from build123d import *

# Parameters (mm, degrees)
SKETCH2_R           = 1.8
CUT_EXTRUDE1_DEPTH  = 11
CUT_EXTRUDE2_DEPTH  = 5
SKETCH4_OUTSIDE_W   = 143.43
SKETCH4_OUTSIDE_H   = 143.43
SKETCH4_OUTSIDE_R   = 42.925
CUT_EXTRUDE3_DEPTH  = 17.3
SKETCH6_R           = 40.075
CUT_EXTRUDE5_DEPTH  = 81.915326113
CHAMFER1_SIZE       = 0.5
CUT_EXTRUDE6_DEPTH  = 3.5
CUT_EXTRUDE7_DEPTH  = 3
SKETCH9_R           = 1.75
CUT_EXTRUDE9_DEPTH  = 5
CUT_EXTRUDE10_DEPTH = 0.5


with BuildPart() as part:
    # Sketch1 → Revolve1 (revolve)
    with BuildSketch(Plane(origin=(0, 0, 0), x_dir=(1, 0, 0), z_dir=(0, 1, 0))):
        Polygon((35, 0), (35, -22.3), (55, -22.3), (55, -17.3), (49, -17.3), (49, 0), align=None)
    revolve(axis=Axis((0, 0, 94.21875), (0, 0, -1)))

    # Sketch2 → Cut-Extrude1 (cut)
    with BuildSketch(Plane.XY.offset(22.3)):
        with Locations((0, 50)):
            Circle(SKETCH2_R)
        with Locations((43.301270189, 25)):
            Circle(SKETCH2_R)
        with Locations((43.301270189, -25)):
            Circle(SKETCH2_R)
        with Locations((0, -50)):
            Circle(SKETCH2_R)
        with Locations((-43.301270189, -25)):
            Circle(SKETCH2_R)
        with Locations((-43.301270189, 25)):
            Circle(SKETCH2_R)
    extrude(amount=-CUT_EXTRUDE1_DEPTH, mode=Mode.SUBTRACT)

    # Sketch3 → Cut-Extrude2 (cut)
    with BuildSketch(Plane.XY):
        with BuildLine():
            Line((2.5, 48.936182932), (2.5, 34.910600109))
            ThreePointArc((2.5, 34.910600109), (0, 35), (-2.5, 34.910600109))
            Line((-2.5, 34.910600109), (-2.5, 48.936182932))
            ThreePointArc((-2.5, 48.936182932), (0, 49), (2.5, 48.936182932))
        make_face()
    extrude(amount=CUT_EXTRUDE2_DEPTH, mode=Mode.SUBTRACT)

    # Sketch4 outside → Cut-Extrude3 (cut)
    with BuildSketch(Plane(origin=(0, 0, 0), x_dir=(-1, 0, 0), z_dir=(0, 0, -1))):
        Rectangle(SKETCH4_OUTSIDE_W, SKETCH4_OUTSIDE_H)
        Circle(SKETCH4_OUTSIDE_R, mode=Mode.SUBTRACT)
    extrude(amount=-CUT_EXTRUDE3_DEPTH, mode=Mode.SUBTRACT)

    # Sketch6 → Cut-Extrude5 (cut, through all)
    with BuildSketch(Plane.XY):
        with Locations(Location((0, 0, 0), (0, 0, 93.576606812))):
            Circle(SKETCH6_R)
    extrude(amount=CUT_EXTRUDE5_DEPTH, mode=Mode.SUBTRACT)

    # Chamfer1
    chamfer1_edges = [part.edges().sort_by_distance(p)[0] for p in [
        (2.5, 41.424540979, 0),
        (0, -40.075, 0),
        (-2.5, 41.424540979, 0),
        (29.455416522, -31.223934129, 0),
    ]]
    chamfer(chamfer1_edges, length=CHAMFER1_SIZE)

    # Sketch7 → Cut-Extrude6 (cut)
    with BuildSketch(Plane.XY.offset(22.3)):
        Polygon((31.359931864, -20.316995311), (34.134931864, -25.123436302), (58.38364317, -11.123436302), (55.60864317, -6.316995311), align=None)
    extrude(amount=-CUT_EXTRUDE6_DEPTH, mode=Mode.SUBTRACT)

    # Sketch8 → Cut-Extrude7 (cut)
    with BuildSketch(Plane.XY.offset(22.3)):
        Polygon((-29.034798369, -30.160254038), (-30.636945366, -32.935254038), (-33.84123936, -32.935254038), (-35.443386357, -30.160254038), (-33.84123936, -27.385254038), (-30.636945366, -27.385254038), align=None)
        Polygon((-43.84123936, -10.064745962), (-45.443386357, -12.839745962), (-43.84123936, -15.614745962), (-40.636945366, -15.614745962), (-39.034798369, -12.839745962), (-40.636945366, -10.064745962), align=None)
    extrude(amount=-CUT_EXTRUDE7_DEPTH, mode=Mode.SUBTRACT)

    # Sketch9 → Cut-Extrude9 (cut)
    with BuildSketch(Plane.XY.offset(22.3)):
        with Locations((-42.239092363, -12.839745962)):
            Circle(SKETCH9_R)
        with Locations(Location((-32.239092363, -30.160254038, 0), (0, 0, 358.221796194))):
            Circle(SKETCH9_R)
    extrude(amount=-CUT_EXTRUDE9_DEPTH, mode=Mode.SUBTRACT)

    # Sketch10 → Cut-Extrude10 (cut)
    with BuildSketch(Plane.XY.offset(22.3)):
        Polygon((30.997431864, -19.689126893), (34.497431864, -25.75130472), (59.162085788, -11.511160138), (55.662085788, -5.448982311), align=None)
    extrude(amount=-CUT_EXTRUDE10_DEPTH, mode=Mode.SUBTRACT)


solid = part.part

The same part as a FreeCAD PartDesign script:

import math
import FreeCAD as App
import Part
import Sketcher
from FreeCAD import Vector
Q = App.Units.Quantity


def edges_at(feature, points):
    """Names of the edges that pass closest to the given points."""
    edges = feature.Shape.Edges
    near = lambda p: min(range(len(edges)), key=lambda i: edges[i].distToShape(Part.Vertex(*p))[0])
    return sorted({f"Edge{near(p) + 1}" for p in points})


def add_polygon(sketch, points):
    """Adds a closed chain of lines whose ends are joined by coincident constraints."""
    first, n = sketch.GeometryCount, len(points)
    for a, b in zip(points, points[1:] + points[:1]):
        sketch.addGeometry(Part.LineSegment(App.Vector(*a, 0), App.Vector(*b, 0)), False)
    for i in range(n):
        sketch.addConstraint(Sketcher.Constraint("Coincident", first + i, 2, first + (i + 1) % n, 1))

doc = App.newDocument("Part")
params = doc.addObject("Spreadsheet::Sheet", "Params")
for row, (alias, value) in enumerate([
    ("sketch1_width", "20 mm"),
    ("sketch1_width2", "6 mm"),
    ("sketch1_height", "5 mm"),
    ("sketch1_height2", "22.3 mm"),
    ("revolution_angle", "360 deg"),
    ("sketch2_diameter", "3.6 mm"),
    ("pocket1_length", "11 mm"),
    ("sketch3_radius", "49 mm"),
    ("sketch3_radius2", "35 mm"),
    ("pocket2_length", "5 mm"),
    ("sketch4_diameter", "85.85 mm"),
    ("sketch4_width", "143.43 mm"),
    ("pocket3_length", "17.3 mm"),
    ("sketch5_diameter", "80.15 mm"),
    ("chamfer_size", "0.5 mm"),
    ("sketch6_length", "28 mm"),
    ("sketch6_length2", "5.55 mm"),
    ("pocket5_length", "3.5 mm"),
    ("pocket6_length", "3 mm"),
    ("sketch8_diameter", "3.5 mm"),
    ("pocket7_length", "5 mm"),
    ("sketch9_length", "7 mm"),
    ("pocket8_length", "0.5 mm"),
], start=1):
    params.set(f"A{row}", alias)
    params.set(f"B{row}", "=" + value)
    params.setAlias(f"B{row}", alias)

body = doc.addObject("PartDesign::Body", "Body")

sketch1 = body.newObject("Sketcher::SketchObject", "Sketch")
sketch1.AttachmentSupport = (doc.getObject("XZ_Plane"), [""])
sketch1.MapMode = "FlatFace"
add_polygon(sketch1, [(35, 0), (35, 22.3), (55, 22.3), (55, 17.3), (49, 17.3), (49, 0)])
sketch1.addConstraint([
    Sketcher.Constraint("Vertical", 0),
    Sketcher.Constraint("Horizontal", 1),
    Sketcher.Constraint("Vertical", 2),
    Sketcher.Constraint("Horizontal", 3),
    Sketcher.Constraint("Vertical", 4),
    Sketcher.Constraint("Horizontal", 5),
    Sketcher.Constraint("PointOnObject", 4, 2, -1),
    Sketcher.Constraint("DistanceX", 1, 1, 1, 2, Q("20 mm")),
    Sketcher.Constraint("DistanceX", 3, 2, 3, 1, Q("6 mm")),
    Sketcher.Constraint("DistanceY", 2, 2, 2, 1, Q("5 mm")),
    Sketcher.Constraint("DistanceY", 0, 1, 0, 2, Q("22.3 mm")),
    Sketcher.Constraint("DistanceX", -1, 1, 0, 2, Q("35 mm")),
])
sketch1.setExpression("Constraints[13]", "Params.sketch1_width")
sketch1.setExpression("Constraints[14]", "Params.sketch1_width2")
sketch1.setExpression("Constraints[15]", "Params.sketch1_height")
sketch1.setExpression("Constraints[16]", "Params.sketch1_height2")
revolution = body.newObject("PartDesign::Revolution", "Revolution")
revolution.Profile = sketch1
revolution.ReferenceAxis = (sketch1, ["V_Axis"])
revolution.setExpression("Angle", "Params.revolution_angle")

sketch2 = body.newObject("Sketcher::SketchObject", "Sketch001")
sketch2.AttachmentSupport = (doc.getObject("XY_Plane"), [""])
sketch2.MapMode = "FlatFace"
sketch2.AttachmentOffset = App.Placement(Vector(0, 0, 22.3), App.Rotation())
sketch2.addGeometry([
    Part.Circle(Vector(0, 50, 0), Vector(0, 0, 1), 1.8),
    Part.Circle(Vector(43.30127, 25, 0), Vector(0, 0, 1), 1.8),
    Part.Circle(Vector(43.30127, -25, 0), Vector(0, 0, 1), 1.8),
    Part.Circle(Vector(0, -50, 0), Vector(0, 0, 1), 1.8),
    Part.Circle(Vector(-43.30127, -25, 0), Vector(0, 0, 1), 1.8),
    Part.Circle(Vector(-43.30127, 25, 0), Vector(0, 0, 1), 1.8),
], False)
sketch2.addConstraint([
    Sketcher.Constraint("Equal", 0, 1),
    Sketcher.Constraint("Equal", 1, 2),
    Sketcher.Constraint("Equal", 2, 3),
    Sketcher.Constraint("Equal", 3, 4),
    Sketcher.Constraint("Equal", 4, 5),
    Sketcher.Constraint("Symmetric", 0, 3, 3, 3, -1, 1),
    Sketcher.Constraint("Symmetric", 1, 3, 4, 3, -1, 1),
    Sketcher.Constraint("Symmetric", 2, 3, 5, 3, -1, 1),
    Sketcher.Constraint("Symmetric", 2, 3, 4, 3, -2),
    Sketcher.Constraint("PointOnObject", 0, 3, -2),
    Sketcher.Constraint("Diameter", 0, Q("3.6 mm")),
    Sketcher.Constraint("DistanceY", -1, 1, 0, 3, Q("50 mm")),
    Sketcher.Constraint("DistanceY", -1, 1, 1, 3, Q("25 mm")),
    Sketcher.Constraint("DistanceX", -1, 1, 1, 3, Q("43.30127 mm")),
])
sketch2.setExpression("Constraints[10]", "Params.sketch2_diameter")
pocket1 = body.newObject("PartDesign::Pocket", "Pocket")
pocket1.Profile = sketch2
pocket1.setExpression("Length", "Params.pocket1_length")

sketch3 = body.newObject("Sketcher::SketchObject", "Sketch002")
sketch3.AttachmentSupport = (doc.getObject("XY_Plane"), [""])
sketch3.MapMode = "FlatFace"
sketch3.addGeometry([
    Part.LineSegment(Vector(2.5, 34.9106, 0), Vector(2.5, 48.936183, 0)),
    Part.ArcOfCircle(Part.Circle(Vector(0, 0, 0), Vector(0, 0, 1), 49), math.radians(87.075476), math.radians(92.924524)),
    Part.LineSegment(Vector(-2.5, 48.936183, 0), Vector(-2.5, 34.9106, 0)),
    Part.ArcOfCircle(Part.Circle(Vector(0, 0, 0), Vector(0, 0, 1), 35), math.radians(85.903956), math.radians(94.096044)),
], False)
sketch3.addConstraint([
    Sketcher.Constraint("Coincident", 0, 2, 1, 1),
    Sketcher.Constraint("Coincident", 1, 2, 2, 1),
    Sketcher.Constraint("Coincident", 2, 2, 3, 2),
    Sketcher.Constraint("Coincident", 3, 1, 0, 1),
    Sketcher.Constraint("Vertical", 0),
    Sketcher.Constraint("Vertical", 2),
    Sketcher.Constraint("Coincident", 1, 3, -1, 1),
    Sketcher.Constraint("Coincident", 3, 3, -1, 1),
    Sketcher.Constraint("Horizontal", 0, 2, 1, 2),
    Sketcher.Constraint("Radius", 1, Q("49 mm")),
    Sketcher.Constraint("Radius", 3, Q("35 mm")),
    Sketcher.Constraint("DistanceX", 1, 2, 0, 2, Q("5 mm")),
])
sketch3.setExpression("Constraints[9]", "Params.sketch3_radius")
sketch3.setExpression("Constraints[10]", "Params.sketch3_radius2")
pocket2 = body.newObject("PartDesign::Pocket", "Pocket001")
pocket2.Profile = sketch3
pocket2.setExpression("Length", "Params.pocket2_length")
pocket2.Reversed = True

sketch4 = body.newObject("Sketcher::SketchObject", "Sketch003")
sketch4.AttachmentSupport = (doc.getObject("XY_Plane"), [""])
sketch4.MapMode = "FlatFace"
add_polygon(sketch4, [(71.715, 71.715), (71.715, -71.715), (-71.715, -71.715), (-71.715, 71.715)])
sketch4.addGeometry(Part.Circle(Vector(0, 0, 0), Vector(0, 0, 1), 42.925), False)
sketch4.addConstraint([
    Sketcher.Constraint("Vertical", 0),
    Sketcher.Constraint("Horizontal", 1),
    Sketcher.Constraint("Vertical", 2),
    Sketcher.Constraint("Horizontal", 3),
    Sketcher.Constraint("Coincident", 4, 3, -1, 1),
    Sketcher.Constraint("Symmetric", 0, 2, 2, 2, -1, 1),
    Sketcher.Constraint("Equal", 3, 0),
    Sketcher.Constraint("Diameter", 4, Q("85.85 mm")),
    Sketcher.Constraint("DistanceX", 1, 2, 1, 1, Q("143.43 mm")),
])
sketch4.setExpression("Constraints[11]", "Params.sketch4_diameter")
sketch4.setExpression("Constraints[12]", "Params.sketch4_width")
pocket3 = body.newObject("PartDesign::Pocket", "Pocket002")
pocket3.Profile = sketch4
pocket3.setExpression("Length", "Params.pocket3_length")
pocket3.Reversed = True

sketch5 = body.newObject("Sketcher::SketchObject", "Sketch004")
sketch5.AttachmentSupport = (doc.getObject("XY_Plane"), [""])
sketch5.MapMode = "FlatFace"
sketch5.addGeometry(Part.Circle(Vector(0, 0, 0), Vector(0, 0, 1), 40.075), False)
sketch5.addConstraint([
    Sketcher.Constraint("Coincident", 0, 3, -1, 1),
    Sketcher.Constraint("Diameter", 0, Q("80.15 mm")),
])
sketch5.setExpression("Constraints[1]", "Params.sketch5_diameter")
pocket4 = body.newObject("PartDesign::Pocket", "Pocket003")
pocket4.Profile = sketch5
pocket4.Type = "ThroughAll"
pocket4.Reversed = True
doc.recompute()

chamfer = body.newObject("PartDesign::Chamfer", "Chamfer")
chamfer.Base = (pocket4, edges_at(pocket4, [
    (2.5, 41.425, 0),
    (0, -40.075, 0),
    (-2.5, 41.425, 0),
    (29.455, -31.224, 0),
]))
chamfer.setExpression("Size", "Params.chamfer_size")

sketch6 = body.newObject("Sketcher::SketchObject", "Sketch005")
sketch6.AttachmentSupport = (doc.getObject("XY_Plane"), [""])
sketch6.MapMode = "FlatFace"
sketch6.AttachmentOffset = App.Placement(Vector(0, 0, 22.3), App.Rotation())
add_polygon(sketch6, [(31.359932, -20.316995), (34.134932, -25.123436), (58.383643, -11.123436), (55.608643, -6.316995)])
sketch6.addConstraint([
    Sketcher.Constraint("Perpendicular", 0, 1),
    Sketcher.Constraint("Perpendicular", 1, 2),
    Sketcher.Constraint("Perpendicular", 2, 3),
    Sketcher.Constraint("Angle", 0, Q("-60 deg")),
    Sketcher.Constraint("Distance", 1, Q("28 mm")),
    Sketcher.Constraint("Distance", 0, Q("5.55 mm")),
    Sketcher.Constraint("DistanceX", -1, 1, 0, 2, Q("34.134932 mm")),
    Sketcher.Constraint("DistanceY", 0, 2, -1, 1, Q("25.123436 mm")),
])
sketch6.setExpression("Constraints[8]", "Params.sketch6_length")
sketch6.setExpression("Constraints[9]", "Params.sketch6_length2")
pocket5 = body.newObject("PartDesign::Pocket", "Pocket004")
pocket5.Profile = sketch6
pocket5.setExpression("Length", "Params.pocket5_length")

sketch7 = body.newObject("Sketcher::SketchObject", "Sketch006")
sketch7.AttachmentSupport = (doc.getObject("XY_Plane"), [""])
sketch7.MapMode = "FlatFace"
sketch7.AttachmentOffset = App.Placement(Vector(0, 0, 22.3), App.Rotation())
add_polygon(sketch7, [(-30.636945, -32.935254), (-29.034798, -30.160254), (-30.636945, -27.385254), (-33.841239, -27.385254), (-35.443386, -30.160254), (-33.841239, -32.935254)])
add_polygon(sketch7, [(-43.841239, -10.064746), (-45.443386, -12.839746), (-43.841239, -15.614746), (-40.636945, -15.614746), (-39.034798, -12.839746), (-40.636945, -10.064746)])
sketch7.addConstraint([
    Sketcher.Constraint("Horizontal", 2),
    Sketcher.Constraint("Horizontal", 5),
    Sketcher.Constraint("Horizontal", 8),
    Sketcher.Constraint("Horizontal", 11),
    Sketcher.Constraint("Parallel", 0, 3),
    Sketcher.Constraint("Parallel", 1, 4),
    Sketcher.Constraint("Parallel", 3, 6),
    Sketcher.Constraint("Parallel", 4, 7),
    Sketcher.Constraint("Parallel", 6, 9),
    Sketcher.Constraint("Parallel", 7, 10),
    Sketcher.Constraint("Horizontal", 0, 2, 3, 2),
    Sketcher.Constraint("Horizontal", 6, 2, 9, 2),
    Sketcher.Constraint("Vertical", 2, 2, 4, 2),
    Sketcher.Constraint("Vertical", 1, 2, 5, 2),
    Sketcher.Constraint("Vertical", 8, 2, 10, 2),
    Sketcher.Constraint("Equal", 5, 8),
    Sketcher.Constraint("Equal", 4, 6),
    Sketcher.Constraint("Angle", 0, Q("60 deg")),
    Sketcher.Constraint("DistanceX", 6, 2, 3, 2, Q("10 mm")),
    Sketcher.Constraint("DistanceY", 4, 2, 2, 2, Q("5.55 mm")),
    Sketcher.Constraint("DistanceX", 0, 2, -1, 1, Q("29.034798 mm")),
    Sketcher.Constraint("DistanceX", 2, 2, 2, 1, Q("3.204294 mm")),
    Sketcher.Constraint("DistanceY", 2, 2, 6, 2, Q("14.545508 mm")),
    Sketcher.Constraint("DistanceY", 0, 2, -1, 1, Q("30.160254 mm")),
])
pocket6 = body.newObject("PartDesign::Pocket", "Pocket005")
pocket6.Profile = sketch7
pocket6.setExpression("Length", "Params.pocket6_length")

sketch8 = body.newObject("Sketcher::SketchObject", "Sketch007")
sketch8.AttachmentSupport = (doc.getObject("XY_Plane"), [""])
sketch8.MapMode = "FlatFace"
sketch8.AttachmentOffset = App.Placement(Vector(0, 0, 22.3), App.Rotation())
sketch8.addGeometry([
    Part.Circle(Vector(-42.239092, -12.839746, 0), Vector(0, 0, 1), 1.75),
    Part.Circle(Vector(-32.239092, -30.160254, 0), Vector(0, 0, 1), 1.75),
], False)
sketch8.addConstraint([
    Sketcher.Constraint("Equal", 0, 1),
    Sketcher.Constraint("Diameter", 0, Q("3.5 mm")),
    Sketcher.Constraint("DistanceX", 0, 3, 1, 3, Q("10 mm")),
    Sketcher.Constraint("DistanceY", 1, 3, 0, 3, Q("17.320508 mm")),
    Sketcher.Constraint("DistanceX", 0, 3, -1, 1, Q("42.239092 mm")),
    Sketcher.Constraint("DistanceY", 0, 3, -1, 1, Q("12.839746 mm")),
])
sketch8.setExpression("Constraints[1]", "Params.sketch8_diameter")
pocket7 = body.newObject("PartDesign::Pocket", "Pocket006")
pocket7.Profile = sketch8
pocket7.setExpression("Length", "Params.pocket7_length")

sketch9 = body.newObject("Sketcher::SketchObject", "Sketch008")
sketch9.AttachmentSupport = (doc.getObject("XY_Plane"), [""])
sketch9.MapMode = "FlatFace"
sketch9.AttachmentOffset = App.Placement(Vector(0, 0, 22.3), App.Rotation())
add_polygon(sketch9, [(30.997432, -19.689127), (34.497432, -25.751305), (59.162086, -11.51116), (55.662086, -5.448982)])
sketch9.addConstraint([
    Sketcher.Constraint("Perpendicular", 0, 1),
    Sketcher.Constraint("Perpendicular", 1, 2),
    Sketcher.Constraint("Perpendicular", 2, 3),
    Sketcher.Constraint("Angle", 0, Q("-60 deg")),
    Sketcher.Constraint("Distance", 0, Q("7 mm")),
    Sketcher.Constraint("Distance", 1, Q("28.480289 mm")),
    Sketcher.Constraint("DistanceX", -1, 1, 0, 2, Q("34.497432 mm")),
    Sketcher.Constraint("DistanceY", 1, 2, -1, 1, Q("11.51116 mm")),
])
sketch9.setExpression("Constraints[8]", "Params.sketch9_length")
pocket8 = body.newObject("PartDesign::Pocket", "Pocket007")
pocket8.Profile = sketch9
pocket8.setExpression("Length", "Params.pocket8_length")

doc.recompute()
